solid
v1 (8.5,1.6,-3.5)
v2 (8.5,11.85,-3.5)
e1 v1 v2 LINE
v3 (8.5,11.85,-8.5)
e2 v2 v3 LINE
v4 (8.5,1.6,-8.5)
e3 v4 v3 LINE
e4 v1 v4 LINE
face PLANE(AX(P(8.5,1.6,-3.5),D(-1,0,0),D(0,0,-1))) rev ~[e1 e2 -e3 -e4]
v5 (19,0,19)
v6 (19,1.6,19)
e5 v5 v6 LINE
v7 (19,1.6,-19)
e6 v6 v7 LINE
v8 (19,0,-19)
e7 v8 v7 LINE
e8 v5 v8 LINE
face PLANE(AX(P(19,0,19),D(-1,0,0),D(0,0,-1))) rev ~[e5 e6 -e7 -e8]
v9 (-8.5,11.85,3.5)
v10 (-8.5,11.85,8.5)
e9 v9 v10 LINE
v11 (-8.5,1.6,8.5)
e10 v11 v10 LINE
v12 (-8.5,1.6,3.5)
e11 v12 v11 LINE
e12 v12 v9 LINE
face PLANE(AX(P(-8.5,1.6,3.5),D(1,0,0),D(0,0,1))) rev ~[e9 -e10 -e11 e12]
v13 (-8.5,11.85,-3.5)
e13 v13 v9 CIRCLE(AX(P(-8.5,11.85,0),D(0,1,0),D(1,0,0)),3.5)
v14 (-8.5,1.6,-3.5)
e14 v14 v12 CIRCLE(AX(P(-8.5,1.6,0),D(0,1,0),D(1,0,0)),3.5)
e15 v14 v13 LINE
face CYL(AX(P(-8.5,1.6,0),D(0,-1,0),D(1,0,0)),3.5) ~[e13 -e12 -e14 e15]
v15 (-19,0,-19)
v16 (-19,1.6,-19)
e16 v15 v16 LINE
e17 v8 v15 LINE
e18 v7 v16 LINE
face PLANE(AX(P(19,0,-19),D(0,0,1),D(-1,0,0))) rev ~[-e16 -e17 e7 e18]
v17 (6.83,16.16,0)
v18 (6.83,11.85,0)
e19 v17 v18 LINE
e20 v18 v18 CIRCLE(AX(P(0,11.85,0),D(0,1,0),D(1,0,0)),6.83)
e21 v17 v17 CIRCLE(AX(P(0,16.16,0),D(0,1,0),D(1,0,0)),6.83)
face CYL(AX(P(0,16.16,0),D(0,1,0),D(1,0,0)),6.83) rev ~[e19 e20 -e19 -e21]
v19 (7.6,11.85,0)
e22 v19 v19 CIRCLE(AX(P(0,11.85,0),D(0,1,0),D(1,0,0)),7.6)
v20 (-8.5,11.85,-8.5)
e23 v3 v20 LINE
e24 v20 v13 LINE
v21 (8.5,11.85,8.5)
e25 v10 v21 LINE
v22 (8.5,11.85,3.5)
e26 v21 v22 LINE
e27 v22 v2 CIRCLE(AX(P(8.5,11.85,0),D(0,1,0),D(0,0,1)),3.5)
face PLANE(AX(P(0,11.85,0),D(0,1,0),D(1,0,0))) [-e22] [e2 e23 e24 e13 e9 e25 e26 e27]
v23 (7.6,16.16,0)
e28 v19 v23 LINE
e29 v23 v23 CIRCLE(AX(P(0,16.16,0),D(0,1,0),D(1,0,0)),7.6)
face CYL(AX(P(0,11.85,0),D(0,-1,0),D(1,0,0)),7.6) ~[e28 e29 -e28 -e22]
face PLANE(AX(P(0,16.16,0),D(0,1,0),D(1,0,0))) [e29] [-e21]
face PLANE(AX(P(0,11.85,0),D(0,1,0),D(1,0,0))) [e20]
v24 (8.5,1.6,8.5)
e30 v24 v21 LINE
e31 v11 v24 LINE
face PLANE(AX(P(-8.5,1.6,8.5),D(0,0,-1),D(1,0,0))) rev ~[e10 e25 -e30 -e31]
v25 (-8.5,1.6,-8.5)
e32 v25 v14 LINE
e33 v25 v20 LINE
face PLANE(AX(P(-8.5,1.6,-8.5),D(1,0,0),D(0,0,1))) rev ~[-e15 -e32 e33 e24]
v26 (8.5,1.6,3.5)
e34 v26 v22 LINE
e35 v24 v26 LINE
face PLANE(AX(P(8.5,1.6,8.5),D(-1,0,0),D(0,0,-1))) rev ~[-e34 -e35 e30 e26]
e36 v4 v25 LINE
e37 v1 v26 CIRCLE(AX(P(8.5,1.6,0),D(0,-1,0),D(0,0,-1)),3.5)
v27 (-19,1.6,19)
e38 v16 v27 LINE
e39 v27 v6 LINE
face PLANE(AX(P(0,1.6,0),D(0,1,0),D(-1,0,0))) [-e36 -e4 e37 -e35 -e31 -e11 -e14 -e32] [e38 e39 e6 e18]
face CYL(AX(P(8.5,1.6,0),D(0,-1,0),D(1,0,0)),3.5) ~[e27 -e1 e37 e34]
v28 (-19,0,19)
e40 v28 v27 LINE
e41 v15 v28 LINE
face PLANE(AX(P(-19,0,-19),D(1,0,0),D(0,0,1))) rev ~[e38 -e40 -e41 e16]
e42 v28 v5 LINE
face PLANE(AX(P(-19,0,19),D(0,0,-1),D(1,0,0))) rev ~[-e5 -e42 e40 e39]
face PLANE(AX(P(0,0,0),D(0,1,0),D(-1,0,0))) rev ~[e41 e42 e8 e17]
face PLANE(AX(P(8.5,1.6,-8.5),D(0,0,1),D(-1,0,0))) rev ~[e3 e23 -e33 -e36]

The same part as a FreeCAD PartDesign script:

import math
import FreeCAD as App
import Part
import Sketcher
from FreeCAD import Vector

doc = App.newDocument("Part")
params = doc.addObject("Spreadsheet::Sheet", "Params")
for row, (alias, value) in enumerate([
    ("sketch1_width", "38 mm"),
    ("pad1_length", "1.6 mm"),
    ("sketch2_radius", "3.5 mm"),
    ("sketch2_width", "17 mm"),
    ("pad2_length", "10.25 mm"),
    ("sketch3_diameter", "15.2 mm"),
    ("pad3_length", "4.31 mm"),
    ("sketch4_diameter", "13.66 mm"),
    ("pocket1_length", "4.31 mm"),
], start=1):
    params.set(f"A{row}", alias)
    params.set(f"B{row}", "=" + value)
    params.setAlias(f"B{row}", alias)

body = doc.addObject("PartDesign::Body", "Body")

sketch1 = body.newObject("Sketcher::SketchObject", "Sketch")
sketch1.AttachmentSupport = (doc.getObject("XZ_Plane"), [""])
sketch1.MapMode = "FlatFace"
sketch1.addGeometry(Part.LineSegment(Vector(-19, -19, 0), Vector(-19, 19, 0)), False)
sketch1.addGeometry(Part.LineSegment(Vector(-19, 19, 0), Vector(19, 19, 0)), False)
sketch1.addGeometry(Part.LineSegment(Vector(19, 19, 0), Vector(19, -19, 0)), False)
sketch1.addGeometry(Part.LineSegment(Vector(19, -19, 0), Vector(-19, -19, 0)), False)
sketch1.addConstraint(Sketcher.Constraint("Coincident", 0, 2, 1, 1))
sketch1.addConstraint(Sketcher.Constraint("Coincident", 1, 2, 2, 1))
sketch1.addConstraint(Sketcher.Constraint("Coincident", 2, 2, 3, 1))
sketch1.addConstraint(Sketcher.Constraint("Coincident", 3, 2, 0, 1))
sketch1.addConstraint(Sketcher.Constraint("Vertical", 0))
sketch1.addConstraint(Sketcher.Constraint("Horizontal", 1))
sketch1.addConstraint(Sketcher.Constraint("Vertical", 2))
sketch1.addConstraint(Sketcher.Constraint("Horizontal", 3))
sketch1.addConstraint(Sketcher.Constraint("Symmetric", 0, 2, 2, 2, -1, 1))
sketch1.addConstraint(Sketcher.Constraint("Equal", 3, 0))
sketch1.addConstraint(Sketcher.Constraint("DistanceX", 1, 1, 1, 2, 38.0))
sketch1.setExpression("Constraints[10]", "Params.sketch1_width")
pad1 = body.newObject("PartDesign::Pad", "Pad")
pad1.Profile = sketch1
pad1.setExpression("Length", "Params.pad1_length")
pad1.Reversed = True

sketch2 = body.newObject("Sketcher::SketchObject", "Sketch001")
sketch2.AttachmentSupport = (doc.getObject("XZ_Plane"), [""])
sketch2.MapMode = "FlatFace"
sketch2.AttachmentOffset = App.Placement(Vector(0, 0, -1.6), App.Rotation())
sketch2.addGeometry(Part.LineSegment(Vector(-8.5, 3.5, 0), Vector(-8.5, 8.5, 0)), False)
sketch2.addGeometry(Part.LineSegment(Vector(-8.5, 8.5, 0), Vector(8.5, 8.5, 0)), False)
sketch2.addGeometry(Part.LineSegment(Vector(8.5, 8.5, 0), Vector(8.5, 3.5, 0)), False)
sketch2.addGeometry(Part.ArcOfCircle(Part.Circle(Vector(8.5, 0, 0), Vector(0, 0, 1), 3.5), math.radians(-90), math.radians(90)), False)
sketch2.addGeometry(Part.LineSegment(Vector(8.5, -3.5, 0), Vector(8.5, -8.5, 0)), False)
sketch2.addGeometry(Part.LineSegment(Vector(8.5, -8.5, 0), Vector(-8.5, -8.5, 0)), False)
sketch2.addGeometry(Part.LineSegment(Vector(-8.5, -8.5, 0), Vector(-8.5, -3.5, 0)), False)
sketch2.addGeometry(Part.ArcOfCircle(Part.Circle(Vector(-8.5, 0, 0), Vector(0, 0, 1), 3.5), math.radians(90), math.radians(270)), False)
sketch2.addConstraint(Sketcher.Constraint("Coincident", 0, 2, 1, 1))
sketch2.addConstraint(Sketcher.Constraint("Coincident", 1, 2, 2, 1))
sketch2.addConstraint(Sketcher.Constraint("Coincident", 2, 2, 3, 2))
sketch2.addConstraint(Sketcher.Constraint("Coincident", 3, 1, 4, 1))
sketch2.addConstraint(Sketcher.Constraint("Coincident", 4, 2, 5, 1))
sketch2.addConstraint(Sketcher.Constraint("Coincident", 5, 2, 6, 1))
sketch2.addConstraint(Sketcher.Constraint("Coincident", 6, 2, 7, 2))
sketch2.addConstraint(Sketcher.Constraint("Coincident", 7, 1, 0, 1))
sketch2.addConstraint(Sketcher.Constraint("Vertical", 0))
sketch2.addConstraint(Sketcher.Constraint("Horizontal", 1))
sketch2.addConstraint(Sketcher.Constraint("Vertical", 2))
sketch2.addConstraint(Sketcher.Constraint("Vertical", 4))
sketch2.addConstraint(Sketcher.Constraint("Horizontal", 5))
sketch2.addConstraint(Sketcher.Constraint("Vertical", 6))
sketch2.addConstraint(Sketcher.Constraint("Equal", 3, 7))
sketch2.addConstraint(Sketcher.Constraint("Symmetric", 3, 3, 7, 3, -1, 1))
sketch2.addConstraint(Sketcher.Constraint("Symmetric", 0, 2, 4, 2, -1, 1))
sketch2.addConstraint(Sketcher.Constraint("Symmetric", 3, 1, 6, 2, -2))
sketch2.addConstraint(Sketcher.Constraint("Vertical", 7, 3, 0, 2))
sketch2.addConstraint(Sketcher.Constraint("Vertical", 3, 3, 1, 2))
sketch2.addConstraint(Sketcher.Constraint("Radius", 3, 3.5))
sketch2.addConstraint(Sketcher.Constraint("DistanceX", 1, 1, 1, 2, 17.0))
sketch2.addConstraint(Sketcher.Constraint("DistanceY", 4, 2, 1, 2, 17.0))
sketch2.setExpression("Constraints[20]", "Params.sketch2_radius")
sketch2.setExpression("Constraints[21]", "Params.sketch2_width")
pad2 = body.newObject("PartDesign::Pad", "Pad001")
pad2.Profile = sketch2
pad2.setExpression("Length", "Params.pad2_length")
pad2.Reversed = True

sketch3 = body.newObject("Sketcher::SketchObject", "Sketch002")
sketch3.AttachmentSupport = (doc.getObject("XZ_Plane"), [""])
sketch3.MapMode = "FlatFace"
sketch3.AttachmentOffset = App.Placement(Vector(0, 0, -11.85), App.Rotation())
sketch3.addGeometry(Part.Circle(Vector(0, 0, 0), Vector(0, 0, 1), 8), False)
sketch3.addConstraint(Sketcher.Constraint("Coincident", 0, 3, -1, 1))
sketch3.addConstraint(Sketcher.Constraint("Diameter", 0, 15.2))
sketch3.setExpression("Constraints[1]", "Params.sketch3_diameter")
pad3 = body.newObject("PartDesign::Pad", "Pad002")
pad3.Profile = sketch3
pad3.setExpression("Length", "Params.pad3_length")
pad3.Reversed = True

sketch4 = body.newObject("Sketcher::SketchObject", "Sketch003")
sketch4.AttachmentSupport = (doc.getObject("XZ_Plane"), [""])
sketch4.MapMode = "FlatFace"
sketch4.AttachmentOffset = App.Placement(Vector(0, 0, -16.16), App.Rotation())
sketch4.addGeometry(Part.Circle(Vector(0, 0, 0), Vector(0, 0, 1), 7), False)
sketch4.addConstraint(Sketcher.Constraint("Coincident", 0, 3, -1, 1))
sketch4.addConstraint(Sketcher.Constraint("Diameter", 0, 13.66))
sketch4.setExpression("Constraints[1]", "Params.sketch4_diameter")
pocket1 = body.newObject("PartDesign::Pocket", "Pocket")
pocket1.Profile = sketch4
pocket1.setExpression("Length", "Params.pocket1_length")
pocket1.Reversed = True

doc.recompute()
